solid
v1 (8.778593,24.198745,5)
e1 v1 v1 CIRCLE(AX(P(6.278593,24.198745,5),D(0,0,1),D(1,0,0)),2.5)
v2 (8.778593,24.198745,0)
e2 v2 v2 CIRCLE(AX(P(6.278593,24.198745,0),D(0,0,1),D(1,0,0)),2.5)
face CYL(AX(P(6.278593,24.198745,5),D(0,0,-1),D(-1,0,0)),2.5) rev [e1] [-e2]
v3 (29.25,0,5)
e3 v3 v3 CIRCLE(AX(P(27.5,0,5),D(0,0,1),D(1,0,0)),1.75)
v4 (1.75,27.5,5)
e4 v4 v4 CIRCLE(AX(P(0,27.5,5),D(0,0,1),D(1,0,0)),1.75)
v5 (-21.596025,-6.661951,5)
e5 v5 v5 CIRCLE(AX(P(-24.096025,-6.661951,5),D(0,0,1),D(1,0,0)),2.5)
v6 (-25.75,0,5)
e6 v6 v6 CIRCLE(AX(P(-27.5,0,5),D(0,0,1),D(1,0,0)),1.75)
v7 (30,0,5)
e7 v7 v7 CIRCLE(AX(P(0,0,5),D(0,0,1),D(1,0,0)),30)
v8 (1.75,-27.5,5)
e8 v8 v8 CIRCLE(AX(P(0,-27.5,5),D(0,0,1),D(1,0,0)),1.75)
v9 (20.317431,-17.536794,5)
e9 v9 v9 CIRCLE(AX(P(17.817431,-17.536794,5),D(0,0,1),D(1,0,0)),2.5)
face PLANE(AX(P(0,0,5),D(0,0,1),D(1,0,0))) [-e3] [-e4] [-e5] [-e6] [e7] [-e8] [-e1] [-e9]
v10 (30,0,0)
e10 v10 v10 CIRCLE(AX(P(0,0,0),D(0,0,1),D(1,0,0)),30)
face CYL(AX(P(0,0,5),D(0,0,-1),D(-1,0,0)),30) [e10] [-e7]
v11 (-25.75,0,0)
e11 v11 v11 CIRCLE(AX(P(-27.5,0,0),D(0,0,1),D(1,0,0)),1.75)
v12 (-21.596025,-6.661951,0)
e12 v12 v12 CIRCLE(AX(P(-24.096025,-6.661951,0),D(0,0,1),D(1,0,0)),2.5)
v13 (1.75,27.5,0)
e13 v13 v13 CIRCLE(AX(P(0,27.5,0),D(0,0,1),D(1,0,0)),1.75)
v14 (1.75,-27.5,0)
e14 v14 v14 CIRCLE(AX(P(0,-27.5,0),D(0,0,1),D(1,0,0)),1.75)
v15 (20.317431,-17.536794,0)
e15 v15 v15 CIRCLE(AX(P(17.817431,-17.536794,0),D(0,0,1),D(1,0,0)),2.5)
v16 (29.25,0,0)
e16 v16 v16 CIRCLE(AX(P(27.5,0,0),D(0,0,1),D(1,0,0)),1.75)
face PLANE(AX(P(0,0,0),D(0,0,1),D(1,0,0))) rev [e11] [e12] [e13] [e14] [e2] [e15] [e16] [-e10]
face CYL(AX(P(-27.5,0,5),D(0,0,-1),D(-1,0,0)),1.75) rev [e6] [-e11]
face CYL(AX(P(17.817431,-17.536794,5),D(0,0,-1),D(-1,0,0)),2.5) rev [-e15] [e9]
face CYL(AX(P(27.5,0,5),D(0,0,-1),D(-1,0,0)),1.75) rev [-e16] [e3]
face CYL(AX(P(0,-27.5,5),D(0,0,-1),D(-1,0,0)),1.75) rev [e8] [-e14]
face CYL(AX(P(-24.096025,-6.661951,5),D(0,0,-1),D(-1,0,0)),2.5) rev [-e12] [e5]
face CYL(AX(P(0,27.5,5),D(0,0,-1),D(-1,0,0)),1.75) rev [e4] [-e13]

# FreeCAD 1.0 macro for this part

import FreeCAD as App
import Part
import Sketcher
Q = App.Units.Quantity

doc = App.newDocument("Part")
body = doc.addObject("PartDesign::Body", "Body")

# Sketch on XY plane
sketch1 = body.newObject("Sketcher::SketchObject", "Sketch")
sketch1.AttachmentSupport = (doc.getObject("XY_Plane"), [""])
sketch1.MapMode = "FlatFace"
sketch1.addGeometry([
    Part.Circle(App.Vector(0, 0, 0), App.Vector(0, 0, 1), 30),  # 0
    Part.Circle(App.Vector(-24.1, -6.7, 0), App.Vector(0, 0, 1), 2.5),  # 1
    Part.Circle(App.Vector(0, -27.5, 0), App.Vector(0, 0, 1), 1.8),  # 2
    Part.Circle(App.Vector(17.8, -17.5, 0), App.Vector(0, 0, 1), 2.5),  # 3
    Part.Circle(App.Vector(-27.5, 0, 0), App.Vector(0, 0, 1), 1.8),  # 4
    Part.Circle(App.Vector(27.5, 0, 0), App.Vector(0, 0, 1), 1.8),  # 5
    Part.Circle(App.Vector(6.3, 24.2, 0), App.Vector(0, 0, 1), 2.5),  # 6
    Part.Circle(App.Vector(0, 27.5, 0), App.Vector(0, 0, 1), 1.8),  # 7
], False)
sketch1.addConstraint([
    Sketcher.Constraint("Coincident", 0, 3, -1, 1),
    Sketcher.Constraint("Equal", 1, 3),
    Sketcher.Constraint("Equal", 2, 4),
    Sketcher.Constraint("Equal", 4, 5),
    Sketcher.Constraint("Equal", 3, 6),
    Sketcher.Constraint("Equal", 5, 7),
    Sketcher.Constraint("Symmetric", 4, 3, 5, 3, -1, 1),
    Sketcher.Constraint("Symmetric", 2, 3, 7, 3, -1, 1),
    Sketcher.Constraint("PointOnObject", 2, 3, -2),
    Sketcher.Constraint("PointOnObject", 4, 3, -1),
    Sketcher.Constraint("Diameter", 0, Q("60 mm")),
    Sketcher.Constraint("Diameter", 1, Q("5 mm")),
    Sketcher.Constraint("Diameter", 2, Q("3.5 mm")),
    Sketcher.Constraint("DistanceX", 4, 3, 5, 3, Q("55 mm")),
    Sketcher.Constraint("DistanceY", 2, 3, -1, 1, Q("27.5 mm")),
    Sketcher.Constraint("DistanceY", 1, 3, -1, 1, Q("6.661951 mm")),
    Sketcher.Constraint("DistanceX", -1, 1, 3, 3, Q("17.817431 mm")),
    Sketcher.Constraint("DistanceX", 1, 3, 6, 3, Q("30.374618 mm")),
    Sketcher.Constraint("DistanceX", 6, 3, 3, 3, Q("11.538838 mm")),
    Sketcher.Constraint("DistanceY", 3, 3, 6, 3, Q("41.735539 mm")),
    Sketcher.Constraint("DistanceY", 3, 3, -1, 1, Q("17.536794 mm")),
])
pad1 = body.newObject("PartDesign::Pad", "Pad")
pad1.Profile = sketch1
pad1.Length = 5

doc.recompute()
